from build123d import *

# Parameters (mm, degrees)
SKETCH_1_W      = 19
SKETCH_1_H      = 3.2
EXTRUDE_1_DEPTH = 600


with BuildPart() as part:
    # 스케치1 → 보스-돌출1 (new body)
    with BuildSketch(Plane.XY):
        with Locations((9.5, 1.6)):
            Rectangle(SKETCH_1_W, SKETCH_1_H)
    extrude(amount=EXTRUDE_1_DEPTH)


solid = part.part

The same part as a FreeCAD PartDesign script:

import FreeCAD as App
import Part
import Sketcher
Q = App.Units.Quantity

doc = App.newDocument("Part")
body = doc.addObject("PartDesign::Body", "Body")

sketch1 = body.newObject("Sketcher::SketchObject", "Sketch")
sketch1.AttachmentSupport = (doc.getObject("XY_Plane"), [""])
sketch1.MapMode = "FlatFace"
sketch1.addGeometry(Part.LineSegment(App.Vector(0, 3.2, 0), App.Vector(0, 0, 0)), False)
sketch1.addGeometry(Part.LineSegment(App.Vector(0, 0, 0), App.Vector(19, 0, 0)), False)
sketch1.addGeometry(Part.LineSegment(App.Vector(19, 0, 0), App.Vector(19, 3.2, 0)), False)
sketch1.addGeometry(Part.LineSegment(App.Vector(19, 3.2, 0), App.Vector(0, 3.2, 0)), False)
sketch1.addConstraint(Sketcher.Constraint("Coincident", 0, 2, 1, 1))
sketch1.addConstraint(Sketcher.Constraint("Coincident", 1, 2, 2, 1))
sketch1.addConstraint(Sketcher.Constraint("Coincident", 2, 2, 3, 1))
sketch1.addConstraint(Sketcher.Constraint("Coincident", 3, 2, 0, 1))
sketch1.addConstraint(Sketcher.Constraint("Vertical", 0))
sketch1.addConstraint(Sketcher.Constraint("Horizontal", 1))
sketch1.addConstraint(Sketcher.Constraint("Vertical", 2))
sketch1.addConstraint(Sketcher.Constraint("Horizontal", 3))
sketch1.addConstraint(Sketcher.Constraint("Coincident", 0, 2, -1, 1))
sketch1.addConstraint(Sketcher.Constraint("DistanceX", 1, 1, 1, 2, Q("19 mm")))
sketch1.addConstraint(Sketcher.Constraint("DistanceY", 0, 2, 0, 1, Q("3.2 mm")))
pad1 = body.newObject("PartDesign::Pad", "Pad")
pad1.Profile = sketch1
pad1.Length = 600

doc.recompute()
